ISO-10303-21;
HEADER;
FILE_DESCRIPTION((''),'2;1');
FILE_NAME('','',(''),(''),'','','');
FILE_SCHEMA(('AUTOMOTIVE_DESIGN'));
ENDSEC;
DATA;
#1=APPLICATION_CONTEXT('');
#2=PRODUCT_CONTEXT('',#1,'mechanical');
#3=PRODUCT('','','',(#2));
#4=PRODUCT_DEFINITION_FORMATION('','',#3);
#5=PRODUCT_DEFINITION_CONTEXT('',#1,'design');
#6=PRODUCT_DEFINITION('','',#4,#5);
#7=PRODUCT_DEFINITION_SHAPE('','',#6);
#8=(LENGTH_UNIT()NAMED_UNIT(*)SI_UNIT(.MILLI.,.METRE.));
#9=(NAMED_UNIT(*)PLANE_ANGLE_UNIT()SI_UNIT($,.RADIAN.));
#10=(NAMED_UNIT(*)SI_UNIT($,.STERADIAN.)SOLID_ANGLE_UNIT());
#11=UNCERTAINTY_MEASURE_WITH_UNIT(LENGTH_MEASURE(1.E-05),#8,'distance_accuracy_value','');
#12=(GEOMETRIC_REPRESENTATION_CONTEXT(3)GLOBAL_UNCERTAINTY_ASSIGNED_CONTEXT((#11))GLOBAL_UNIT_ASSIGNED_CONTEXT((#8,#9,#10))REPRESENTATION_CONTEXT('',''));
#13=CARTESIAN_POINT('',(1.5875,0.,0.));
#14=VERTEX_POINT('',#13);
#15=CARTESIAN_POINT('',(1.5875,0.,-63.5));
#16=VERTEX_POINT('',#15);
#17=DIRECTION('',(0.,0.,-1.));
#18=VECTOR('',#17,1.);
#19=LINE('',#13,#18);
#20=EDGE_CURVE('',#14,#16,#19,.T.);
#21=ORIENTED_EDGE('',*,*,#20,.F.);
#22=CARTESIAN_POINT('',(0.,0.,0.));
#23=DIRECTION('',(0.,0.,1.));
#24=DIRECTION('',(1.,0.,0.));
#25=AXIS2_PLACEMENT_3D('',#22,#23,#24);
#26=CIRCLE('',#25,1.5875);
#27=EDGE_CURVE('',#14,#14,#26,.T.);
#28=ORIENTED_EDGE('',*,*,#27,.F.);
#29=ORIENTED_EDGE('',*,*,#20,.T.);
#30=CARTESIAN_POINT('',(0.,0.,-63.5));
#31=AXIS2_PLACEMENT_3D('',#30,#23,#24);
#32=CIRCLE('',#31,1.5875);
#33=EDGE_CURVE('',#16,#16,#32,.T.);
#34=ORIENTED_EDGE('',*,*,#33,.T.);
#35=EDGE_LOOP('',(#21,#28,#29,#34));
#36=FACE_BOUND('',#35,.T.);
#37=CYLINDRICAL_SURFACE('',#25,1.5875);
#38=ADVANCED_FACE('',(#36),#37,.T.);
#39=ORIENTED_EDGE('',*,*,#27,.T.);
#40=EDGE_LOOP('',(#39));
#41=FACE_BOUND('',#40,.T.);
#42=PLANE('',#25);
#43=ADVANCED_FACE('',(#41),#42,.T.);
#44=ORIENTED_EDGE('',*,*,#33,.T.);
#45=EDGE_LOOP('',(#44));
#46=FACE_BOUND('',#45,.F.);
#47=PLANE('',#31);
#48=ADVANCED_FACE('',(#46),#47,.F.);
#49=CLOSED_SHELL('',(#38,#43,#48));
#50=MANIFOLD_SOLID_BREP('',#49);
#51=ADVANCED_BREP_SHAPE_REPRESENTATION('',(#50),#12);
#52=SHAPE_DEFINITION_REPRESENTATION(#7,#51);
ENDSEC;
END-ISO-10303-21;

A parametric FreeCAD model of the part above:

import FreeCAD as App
import Part
import Sketcher
from FreeCAD import Vector
Q = App.Units.Quantity

doc = App.newDocument("Part")
body = doc.addObject("PartDesign::Body", "Body")

sketch1 = doc.addObject("Sketcher::SketchObject", "Sketch")
body.addObject(sketch1)
sketch1.AttachmentSupport = (doc.XY_Plane, [""])
sketch1.MapMode = "FlatFace"
sketch1.addGeometry(Part.Circle(Vector(0, 0, 0), Vector(0, 0, 1), 1.6), False)
sketch1.addConstraint([
    Sketcher.Constraint("Coincident", 0, 3, -1, 1),
    Sketcher.Constraint("Diameter", 0, Q("0.125 in")),
])
pad1 = doc.addObject("PartDesign::Pad", "Pad")
body.addObject(pad1)
pad1.Profile = sketch1
pad1.Length = Q("2.5 in")
pad1.Reversed = True

doc.recompute()
